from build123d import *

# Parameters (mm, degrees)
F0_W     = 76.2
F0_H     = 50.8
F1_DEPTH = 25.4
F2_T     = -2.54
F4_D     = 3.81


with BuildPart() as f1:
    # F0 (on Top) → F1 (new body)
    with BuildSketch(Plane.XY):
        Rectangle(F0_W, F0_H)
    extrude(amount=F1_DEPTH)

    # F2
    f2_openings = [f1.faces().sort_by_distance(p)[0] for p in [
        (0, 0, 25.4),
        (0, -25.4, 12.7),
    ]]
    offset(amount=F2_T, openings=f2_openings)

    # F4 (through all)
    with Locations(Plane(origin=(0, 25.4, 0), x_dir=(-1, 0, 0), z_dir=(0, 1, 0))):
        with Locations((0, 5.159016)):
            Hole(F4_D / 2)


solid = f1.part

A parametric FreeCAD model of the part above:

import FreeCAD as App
import Part
import Sketcher

V = App.Vector
Q = App.Units.Quantity


def faces_at(feature, points):
    """Names of the faces that lie closest to the given points."""
    faces = feature.Shape.Faces
    near = lambda p: min(range(len(faces)), key=lambda i: faces[i].distToShape(Part.Vertex(*p))[0])
    return sorted({f"Face{near(p) + 1}" for p in points})


def add_polygon(sketch, points):
    """Adds a closed chain of lines whose ends are joined by coincident constraints."""
    first, n = sketch.GeometryCount, len(points)
    for a, b in zip(points, points[1:] + points[:1]):
        sketch.addGeometry(Part.LineSegment(App.Vector(*a, 0), App.Vector(*b, 0)), False)
    for i in range(n):
        sketch.addConstraint(Sketcher.Constraint("Coincident", first + i, 2, first + (i + 1) % n, 1))

doc = App.newDocument("Part")
body = doc.addObject("PartDesign::Body", "Body")

# Sketch on XY plane
sketch1 = body.newObject("Sketcher::SketchObject", "Sketch")
sketch1.AttachmentSupport = (doc.getObject("XY_Plane"), [""])
sketch1.MapMode = "FlatFace"
add_polygon(sketch1, [(-38.1, 25.4), (-38.1, -25.4), (38.1, -25.4), (38.1, 25.4)])  # lines 0-3
sketch1.addConstraint([
    Sketcher.Constraint("Vertical", 0),
    Sketcher.Constraint("Horizontal", 1),
    Sketcher.Constraint("Vertical", 2),
    Sketcher.Constraint("Horizontal", 3),
    Sketcher.Constraint("Symmetric", 0, 2, 2, 2, -1, 1),
    Sketcher.Constraint("DistanceX", 1, 1, 1, 2, Q("3 in")),
    Sketcher.Constraint("DistanceY", 0, 2, 0, 1, Q("2 in")),
])
pad1 = body.newObject("PartDesign::Pad", "Pad")
pad1.Profile = sketch1
pad1.Length = Q("1 in")
doc.recompute()

thickness = body.newObject("PartDesign::Thickness", "Thickness")
thickness.Base = (pad1, faces_at(pad1, [(0, 0, 25.4), (0, -25.4, 12.7)]))
thickness.Value = Q("0.1 in")
thickness.Reversed = True
thickness.Join = "Arc"

# Sketch on XZ plane
sketch2 = body.newObject("Sketcher::SketchObject", "Sketch001")
sketch2.AttachmentSupport = (doc.getObject("XZ_Plane"), [""])
sketch2.MapMode = "FlatFace"
sketch2.AttachmentOffset = App.Placement(V(0, 0, -1 * 25.4), App.Rotation())
sketch2.addGeometry(Part.Circle(V(0, 5.159016, 0), V(0, 0, 1), 1.905), False)
sketch2.addConstraint([
    Sketcher.Constraint("PointOnObject", 0, 3, -2),
    Sketcher.Constraint("Diameter", 0, Q("0.15 in")),
    Sketcher.Constraint("DistanceY", -1, 1, 0, 3, 5.159016),
])
doc.recompute()
hole = body.newObject("PartDesign::Hole", "Hole")
hole.Profile = sketch2
hole.ThreadType = "None"
hole.Diameter = Q("0.15 in")
hole.DepthType = "ThroughAll"
hole.Reversed = True

doc.recompute()
